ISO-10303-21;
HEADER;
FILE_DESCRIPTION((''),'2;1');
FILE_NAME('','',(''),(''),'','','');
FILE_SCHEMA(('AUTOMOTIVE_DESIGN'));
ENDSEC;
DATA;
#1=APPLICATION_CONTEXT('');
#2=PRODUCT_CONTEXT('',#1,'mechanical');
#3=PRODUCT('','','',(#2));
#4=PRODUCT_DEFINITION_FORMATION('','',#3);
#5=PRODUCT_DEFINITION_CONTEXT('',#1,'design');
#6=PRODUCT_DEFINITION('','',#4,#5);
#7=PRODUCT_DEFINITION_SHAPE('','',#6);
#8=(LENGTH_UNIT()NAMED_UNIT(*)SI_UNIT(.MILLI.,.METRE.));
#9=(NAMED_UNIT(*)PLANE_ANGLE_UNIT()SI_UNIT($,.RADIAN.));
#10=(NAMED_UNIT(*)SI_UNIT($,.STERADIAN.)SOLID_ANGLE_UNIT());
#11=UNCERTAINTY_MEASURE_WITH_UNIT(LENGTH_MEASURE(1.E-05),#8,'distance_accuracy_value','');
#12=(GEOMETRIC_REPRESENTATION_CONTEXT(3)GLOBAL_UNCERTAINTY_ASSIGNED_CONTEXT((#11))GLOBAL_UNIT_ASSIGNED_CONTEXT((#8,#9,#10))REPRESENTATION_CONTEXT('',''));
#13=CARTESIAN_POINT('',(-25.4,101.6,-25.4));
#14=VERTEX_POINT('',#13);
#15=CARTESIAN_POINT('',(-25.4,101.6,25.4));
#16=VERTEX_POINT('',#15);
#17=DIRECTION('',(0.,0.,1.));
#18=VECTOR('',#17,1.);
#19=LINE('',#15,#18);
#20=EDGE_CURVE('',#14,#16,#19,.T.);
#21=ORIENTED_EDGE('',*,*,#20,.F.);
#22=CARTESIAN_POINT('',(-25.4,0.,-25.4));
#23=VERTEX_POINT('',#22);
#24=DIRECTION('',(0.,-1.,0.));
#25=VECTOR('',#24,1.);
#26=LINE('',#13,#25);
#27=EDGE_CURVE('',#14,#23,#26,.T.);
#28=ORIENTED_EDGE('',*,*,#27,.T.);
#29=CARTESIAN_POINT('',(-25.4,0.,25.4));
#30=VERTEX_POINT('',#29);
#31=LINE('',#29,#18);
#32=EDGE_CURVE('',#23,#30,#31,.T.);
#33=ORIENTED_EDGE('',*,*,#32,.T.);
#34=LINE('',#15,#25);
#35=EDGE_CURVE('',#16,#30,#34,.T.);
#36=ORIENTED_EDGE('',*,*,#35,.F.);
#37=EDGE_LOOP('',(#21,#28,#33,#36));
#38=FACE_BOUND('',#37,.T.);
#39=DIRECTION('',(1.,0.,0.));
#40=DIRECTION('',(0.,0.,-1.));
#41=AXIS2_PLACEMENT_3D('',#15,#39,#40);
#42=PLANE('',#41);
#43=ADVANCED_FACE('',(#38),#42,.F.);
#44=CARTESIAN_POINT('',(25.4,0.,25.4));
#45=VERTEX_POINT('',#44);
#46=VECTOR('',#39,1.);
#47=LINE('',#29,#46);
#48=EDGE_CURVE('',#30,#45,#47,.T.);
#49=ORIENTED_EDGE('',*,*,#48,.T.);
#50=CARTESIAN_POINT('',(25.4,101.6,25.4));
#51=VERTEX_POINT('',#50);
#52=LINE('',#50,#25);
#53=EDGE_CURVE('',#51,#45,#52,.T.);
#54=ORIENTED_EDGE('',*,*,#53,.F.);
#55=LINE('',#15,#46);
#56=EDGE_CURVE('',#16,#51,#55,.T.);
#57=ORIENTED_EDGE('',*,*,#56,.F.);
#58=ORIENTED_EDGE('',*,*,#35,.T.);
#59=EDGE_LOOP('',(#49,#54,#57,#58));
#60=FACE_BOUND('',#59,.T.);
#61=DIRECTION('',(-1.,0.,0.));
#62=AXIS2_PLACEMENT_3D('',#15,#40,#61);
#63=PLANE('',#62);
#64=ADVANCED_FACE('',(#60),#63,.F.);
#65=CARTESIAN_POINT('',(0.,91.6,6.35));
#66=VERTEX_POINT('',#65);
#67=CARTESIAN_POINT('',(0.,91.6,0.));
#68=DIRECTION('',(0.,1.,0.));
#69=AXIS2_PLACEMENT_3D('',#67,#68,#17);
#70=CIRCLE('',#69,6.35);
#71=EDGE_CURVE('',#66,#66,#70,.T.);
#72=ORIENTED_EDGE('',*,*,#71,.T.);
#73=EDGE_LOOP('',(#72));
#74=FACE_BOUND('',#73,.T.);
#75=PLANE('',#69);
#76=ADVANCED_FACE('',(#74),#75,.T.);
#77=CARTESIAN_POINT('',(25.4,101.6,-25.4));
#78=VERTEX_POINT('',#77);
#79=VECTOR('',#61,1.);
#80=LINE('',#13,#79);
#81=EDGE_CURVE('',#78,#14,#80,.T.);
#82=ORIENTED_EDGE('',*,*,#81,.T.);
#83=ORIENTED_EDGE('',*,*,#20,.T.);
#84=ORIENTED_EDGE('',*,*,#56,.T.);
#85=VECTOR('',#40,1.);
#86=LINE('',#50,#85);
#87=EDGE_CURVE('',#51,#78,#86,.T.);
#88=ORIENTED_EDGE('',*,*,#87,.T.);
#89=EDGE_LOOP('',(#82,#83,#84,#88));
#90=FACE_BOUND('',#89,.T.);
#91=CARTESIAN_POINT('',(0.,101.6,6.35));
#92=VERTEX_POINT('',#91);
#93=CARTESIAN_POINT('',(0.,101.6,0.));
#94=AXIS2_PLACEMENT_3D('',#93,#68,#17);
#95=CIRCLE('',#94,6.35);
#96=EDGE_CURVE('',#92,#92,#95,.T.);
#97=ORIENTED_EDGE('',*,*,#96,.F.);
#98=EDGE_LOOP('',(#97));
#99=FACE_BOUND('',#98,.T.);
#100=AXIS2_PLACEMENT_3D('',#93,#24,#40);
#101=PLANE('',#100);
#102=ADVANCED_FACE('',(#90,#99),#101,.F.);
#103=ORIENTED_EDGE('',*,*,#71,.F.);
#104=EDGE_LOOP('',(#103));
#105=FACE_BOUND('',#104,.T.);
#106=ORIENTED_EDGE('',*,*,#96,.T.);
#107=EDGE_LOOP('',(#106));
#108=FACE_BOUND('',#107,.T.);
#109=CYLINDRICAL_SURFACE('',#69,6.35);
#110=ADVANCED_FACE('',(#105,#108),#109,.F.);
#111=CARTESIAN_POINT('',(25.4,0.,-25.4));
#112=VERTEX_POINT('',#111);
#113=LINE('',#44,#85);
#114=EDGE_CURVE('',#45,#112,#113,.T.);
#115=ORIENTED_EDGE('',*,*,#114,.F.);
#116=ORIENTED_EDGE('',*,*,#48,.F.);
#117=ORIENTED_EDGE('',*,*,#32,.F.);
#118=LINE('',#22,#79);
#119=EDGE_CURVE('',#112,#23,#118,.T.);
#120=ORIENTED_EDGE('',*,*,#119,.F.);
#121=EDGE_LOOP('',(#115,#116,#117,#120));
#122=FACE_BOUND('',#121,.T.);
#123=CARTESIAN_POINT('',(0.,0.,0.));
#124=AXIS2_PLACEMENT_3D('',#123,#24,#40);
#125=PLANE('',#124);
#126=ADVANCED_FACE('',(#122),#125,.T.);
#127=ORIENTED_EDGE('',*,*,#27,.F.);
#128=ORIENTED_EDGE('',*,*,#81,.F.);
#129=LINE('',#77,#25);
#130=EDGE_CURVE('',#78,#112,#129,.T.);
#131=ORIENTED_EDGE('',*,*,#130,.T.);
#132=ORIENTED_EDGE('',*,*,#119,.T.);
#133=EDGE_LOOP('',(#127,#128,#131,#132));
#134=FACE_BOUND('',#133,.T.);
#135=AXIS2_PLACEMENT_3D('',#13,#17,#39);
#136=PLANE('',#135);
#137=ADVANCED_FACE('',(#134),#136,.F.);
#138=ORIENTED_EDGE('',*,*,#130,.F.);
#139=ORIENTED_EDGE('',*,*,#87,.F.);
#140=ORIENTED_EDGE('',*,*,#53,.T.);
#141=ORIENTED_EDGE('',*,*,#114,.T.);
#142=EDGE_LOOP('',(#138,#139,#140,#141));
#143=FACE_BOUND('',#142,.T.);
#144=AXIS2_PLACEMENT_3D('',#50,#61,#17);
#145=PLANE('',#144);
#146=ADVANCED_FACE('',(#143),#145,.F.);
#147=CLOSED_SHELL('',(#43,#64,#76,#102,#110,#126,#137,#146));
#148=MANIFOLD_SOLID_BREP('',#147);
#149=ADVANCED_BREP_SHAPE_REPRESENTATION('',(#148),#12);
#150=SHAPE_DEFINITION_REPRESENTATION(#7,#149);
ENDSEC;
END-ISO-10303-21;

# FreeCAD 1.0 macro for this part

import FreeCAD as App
import Part
import Sketcher
Q = App.Units.Quantity


def add_polygon(sketch, points):
    """Adds a closed chain of lines whose ends are joined by coincident constraints."""
    first, n = sketch.GeometryCount, len(points)
    for a, b in zip(points, points[1:] + points[:1]):
        sketch.addGeometry(Part.LineSegment(App.Vector(*a, 0), App.Vector(*b, 0)), False)
    for i in range(n):
        sketch.addConstraint(Sketcher.Constraint("Coincident", first + i, 2, first + (i + 1) % n, 1))

doc = App.newDocument("Part")
params = doc.addObject("Spreadsheet::Sheet", "Params")
for row, (alias, value) in enumerate([
    ("sketch1_width", "2 in"),
    ("pad1_length", "4 in"),
    ("sketch2_diameter", "0.5 in"),
    ("pocket1_length", "10 mm"),
], start=1):
    params.set(f"A{row}", alias)
    params.set(f"B{row}", "=" + value)
    params.setAlias(f"B{row}", alias)

body = doc.addObject("PartDesign::Body", "Body")

# Sketch on XZ plane
sketch1 = doc.addObject("Sketcher::SketchObject", "Sketch")
body.addObject(sketch1)
sketch1.AttachmentSupport = (doc.XZ_Plane, [""])
sketch1.MapMode = "FlatFace"
add_polygon(sketch1, [(-25, -25), (-25, 25), (25, 25), (25, -25)])  # lines 0-3
sketch1.addConstraint([
    Sketcher.Constraint("Vertical", 0),
    Sketcher.Constraint("Horizontal", 1),
    Sketcher.Constraint("Vertical", 2),
    Sketcher.Constraint("Horizontal", 3),
    Sketcher.Constraint("Symmetric", 0, 2, 2, 2, -1, 1),
    Sketcher.Constraint("Equal", 3, 0),
    Sketcher.Constraint("DistanceX", 1, 1, 1, 2, Q("2 in")),
])
sketch1.setExpression("Constraints[10]", "Params.sketch1_width")
pad1 = doc.addObject("PartDesign::Pad", "Pad")
body.addObject(pad1)
pad1.Profile = sketch1
pad1.setExpression("Length", "Params.pad1_length")
pad1.Reversed = True

# Sketch on XZ plane
sketch2 = doc.addObject("Sketcher::SketchObject", "Sketch001")
body.addObject(sketch2)
sketch2.AttachmentSupport = (doc.XZ_Plane, [""])
sketch2.MapMode = "FlatFace"
sketch2.AttachmentOffset = App.Placement(App.Vector(0, 0, -4 * 25.4), App.Rotation())
sketch2.addGeometry(Part.Circle(App.Vector(0, 0, 0), App.Vector(0, 0, 1), 6), False)
sketch2.addConstraint([
    Sketcher.Constraint("Coincident", 0, 3, -1, 1),
    Sketcher.Constraint("Diameter", 0, Q("0.5 in")),
])
sketch2.setExpression("Constraints[1]", "Params.sketch2_diameter")
pocket1 = doc.addObject("PartDesign::Pocket", "Pocket")
body.addObject(pocket1)
pocket1.Profile = sketch2
pocket1.setExpression("Length", "Params.pocket1_length")
pocket1.Reversed = True

doc.recompute()
